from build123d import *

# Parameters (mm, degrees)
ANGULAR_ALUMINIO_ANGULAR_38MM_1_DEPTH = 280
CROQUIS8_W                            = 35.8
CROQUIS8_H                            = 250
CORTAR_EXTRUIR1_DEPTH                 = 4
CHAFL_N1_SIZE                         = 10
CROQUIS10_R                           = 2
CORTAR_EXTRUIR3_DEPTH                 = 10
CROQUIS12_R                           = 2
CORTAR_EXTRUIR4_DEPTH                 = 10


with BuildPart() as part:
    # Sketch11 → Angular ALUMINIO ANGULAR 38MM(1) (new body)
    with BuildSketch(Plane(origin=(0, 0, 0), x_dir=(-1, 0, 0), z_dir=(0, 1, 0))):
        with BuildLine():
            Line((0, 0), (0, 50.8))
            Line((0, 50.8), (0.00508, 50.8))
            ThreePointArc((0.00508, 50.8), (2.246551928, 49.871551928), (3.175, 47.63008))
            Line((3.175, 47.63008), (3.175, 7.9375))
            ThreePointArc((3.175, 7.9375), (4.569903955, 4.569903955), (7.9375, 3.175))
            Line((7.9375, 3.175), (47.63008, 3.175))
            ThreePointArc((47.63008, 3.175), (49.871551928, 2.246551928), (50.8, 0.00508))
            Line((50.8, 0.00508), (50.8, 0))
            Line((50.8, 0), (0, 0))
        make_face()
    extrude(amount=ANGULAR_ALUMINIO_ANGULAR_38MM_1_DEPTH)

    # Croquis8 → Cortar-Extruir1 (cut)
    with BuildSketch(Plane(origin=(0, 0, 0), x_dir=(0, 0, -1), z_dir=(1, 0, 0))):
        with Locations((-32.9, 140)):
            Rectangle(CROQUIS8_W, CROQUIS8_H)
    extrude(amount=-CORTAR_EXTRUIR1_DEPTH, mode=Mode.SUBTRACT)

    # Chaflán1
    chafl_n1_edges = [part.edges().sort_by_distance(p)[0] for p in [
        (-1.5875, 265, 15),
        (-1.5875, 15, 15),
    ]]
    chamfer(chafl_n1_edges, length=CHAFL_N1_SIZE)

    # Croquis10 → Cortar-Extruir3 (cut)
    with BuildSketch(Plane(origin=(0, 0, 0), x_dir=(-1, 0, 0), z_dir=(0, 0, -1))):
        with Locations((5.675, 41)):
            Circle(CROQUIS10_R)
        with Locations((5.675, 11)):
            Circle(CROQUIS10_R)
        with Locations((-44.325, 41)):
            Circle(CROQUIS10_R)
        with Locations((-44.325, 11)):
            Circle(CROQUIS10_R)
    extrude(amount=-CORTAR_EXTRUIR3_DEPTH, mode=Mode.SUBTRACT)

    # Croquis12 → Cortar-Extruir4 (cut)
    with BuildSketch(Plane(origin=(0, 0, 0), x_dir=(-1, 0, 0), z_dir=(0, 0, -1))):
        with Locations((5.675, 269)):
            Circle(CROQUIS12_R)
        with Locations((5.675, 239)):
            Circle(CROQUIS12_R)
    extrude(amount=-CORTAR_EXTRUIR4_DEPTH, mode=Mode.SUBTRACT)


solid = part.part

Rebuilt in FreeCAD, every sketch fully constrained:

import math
import FreeCAD as App
import Part
import Sketcher
from FreeCAD import Vector
Q = App.Units.Quantity


def edges_at(feature, points):
    """Names of the edges that pass closest to the given points."""
    edges = feature.Shape.Edges
    near = lambda p: min(range(len(edges)), key=lambda i: edges[i].distToShape(Part.Vertex(*p))[0])
    return sorted({f"Edge{near(p) + 1}" for p in points})

doc = App.newDocument("Part")
params = doc.addObject("Spreadsheet::Sheet", "Params")
for row, (alias, value) in enumerate([
    ("sketch1_width", "50.8 mm"),
    ("pad1_length", "280 mm"),
    ("sketch2_width", "250 mm"),
    ("sketch2_height", "35.8 mm"),
    ("pocket1_length", "4 mm"),
    ("chamfer_size", "10 mm"),
    ("sketch3_diameter", "4 mm"),
    ("pocket2_length", "10 mm"),
    ("sketch4_diameter", "4 mm"),
    ("pocket3_length", "10 mm"),
], start=1):
    params.set(f"A{row}", alias)
    params.set(f"B{row}", "=" + value)
    params.setAlias(f"B{row}", alias)

body = doc.addObject("PartDesign::Body", "Body")

sketch1 = body.newObject("Sketcher::SketchObject", "Sketch")
sketch1.AttachmentSupport = (doc.getObject("XZ_Plane"), [""])
sketch1.MapMode = "FlatFace"
sketch1.addGeometry(Part.LineSegment(Vector(0, 50.8, 0), Vector(0, 0, 0)), False)
sketch1.addGeometry(Part.LineSegment(Vector(0, 0, 0), Vector(-50.8, 0, 0)), False)
sketch1.addGeometry(Part.LineSegment(Vector(-50.8, 0, 0), Vector(-50.8, 0.005, 0)), False)
sketch1.addGeometry(Part.ArcOfCircle(Part.Circle(Vector(-47.63, 0.005, 0), Vector(0, 0, 1), 3.17), math.radians(90), math.radians(180)), False)
sketch1.addGeometry(Part.LineSegment(Vector(-47.63, 3.175, 0), Vector(-7.938, 3.175, 0)), False)
sketch1.addGeometry(Part.ArcOfCircle(Part.Circle(Vector(-7.938, 7.938, 0), Vector(0, 0, 1), 4.763), math.radians(-90), math.radians(0)), False)
sketch1.addGeometry(Part.LineSegment(Vector(-3.175, 7.938, 0), Vector(-3.175, 47.63, 0)), False)
sketch1.addGeometry(Part.ArcOfCircle(Part.Circle(Vector(-0.005, 47.63, 0), Vector(0, 0, 1), 3.17), math.radians(90), math.radians(180)), False)
sketch1.addGeometry(Part.LineSegment(Vector(-0.005, 50.8, 0), Vector(0, 50.8, 0)), False)
sketch1.addConstraint(Sketcher.Constraint("Coincident", 0, 2, 1, 1))
sketch1.addConstraint(Sketcher.Constraint("Coincident", 1, 2, 2, 1))
sketch1.addConstraint(Sketcher.Constraint("Tangent", 2, 2, 3, 2))
sketch1.addConstraint(Sketcher.Constraint("Tangent", 3, 1, 4, 1))
sketch1.addConstraint(Sketcher.Constraint("Tangent", 4, 2, 5, 1))
sketch1.addConstraint(Sketcher.Constraint("Tangent", 5, 2, 6, 1))
sketch1.addConstraint(Sketcher.Constraint("Tangent", 6, 2, 7, 2))
sketch1.addConstraint(Sketcher.Constraint("Tangent", 7, 1, 8, 1))
sketch1.addConstraint(Sketcher.Constraint("Coincident", 8, 2, 0, 1))
sketch1.addConstraint(Sketcher.Constraint("Vertical", 0))
sketch1.addConstraint(Sketcher.Constraint("Horizontal", 1))
sketch1.addConstraint(Sketcher.Constraint("Horizontal", 4))
sketch1.addConstraint(Sketcher.Constraint("Vertical", 6))
sketch1.addConstraint(Sketcher.Constraint("Coincident", 0, 2, -1, 1))
sketch1.addConstraint(Sketcher.Constraint("Equal", 3, 7))
sketch1.addConstraint(Sketcher.Constraint("Horizontal", 3, 3, 2, 2))
sketch1.addConstraint(Sketcher.Constraint("Equal", 1, 0))
sketch1.addConstraint(Sketcher.Constraint("Equal", 8, 2))
sketch1.addConstraint(Sketcher.Constraint("Equal", 4, 6))
sketch1.addConstraint(Sketcher.Constraint("DistanceX", 1, 2, 1, 1, Q("50.8 mm")))
sketch1.addConstraint(Sketcher.Constraint("Radius", 5, Q("4.7625 mm")))
sketch1.addConstraint(Sketcher.Constraint("Radius", 3, Q("3.16992 mm")))
sketch1.addConstraint(Sketcher.Constraint("DistanceY", -1, 1, 3, 1, Q("3.175 mm")))
sketch1.setExpression("Constraints[19]", "Params.sketch1_width")
pad1 = body.newObject("PartDesign::Pad", "Pad")
pad1.Profile = sketch1
pad1.setExpression("Length", "Params.pad1_length")
pad1.Reversed = True

sketch2 = body.newObject("Sketcher::SketchObject", "Sketch001")
sketch2.AttachmentSupport = (doc.getObject("YZ_Plane"), [""])
sketch2.MapMode = "FlatFace"
sketch2.addGeometry(Part.LineSegment(Vector(265, 51, 0), Vector(15, 51, 0)), False)
sketch2.addGeometry(Part.LineSegment(Vector(15, 51, 0), Vector(15, 15, 0)), False)
sketch2.addGeometry(Part.LineSegment(Vector(15, 15, 0), Vector(265, 15, 0)), False)
sketch2.addGeometry(Part.LineSegment(Vector(265, 15, 0), Vector(265, 51, 0)), False)
sketch2.addConstraint(Sketcher.Constraint("Coincident", 0, 2, 1, 1))
sketch2.addConstraint(Sketcher.Constraint("Coincident", 1, 2, 2, 1))
sketch2.addConstraint(Sketcher.Constraint("Coincident", 2, 2, 3, 1))
sketch2.addConstraint(Sketcher.Constraint("Coincident", 3, 2, 0, 1))
sketch2.addConstraint(Sketcher.Constraint("Horizontal", 0))
sketch2.addConstraint(Sketcher.Constraint("Vertical", 1))
sketch2.addConstraint(Sketcher.Constraint("Horizontal", 2))
sketch2.addConstraint(Sketcher.Constraint("Vertical", 3))
sketch2.addConstraint(Sketcher.Constraint("DistanceX", 0, 2, 0, 1, Q("250 mm")))
sketch2.addConstraint(Sketcher.Constraint("DistanceY", 1, 2, 1, 1, Q("35.8 mm")))
sketch2.addConstraint(Sketcher.Constraint("DistanceX", -1, 1, 0, 2, Q("15 mm")))
sketch2.addConstraint(Sketcher.Constraint("DistanceY", -1, 1, 1, 2, Q("15 mm")))
sketch2.setExpression("Constraints[8]", "Params.sketch2_width")
sketch2.setExpression("Constraints[9]", "Params.sketch2_height")
pocket1 = body.newObject("PartDesign::Pocket", "Pocket")
pocket1.Profile = sketch2
pocket1.setExpression("Length", "Params.pocket1_length")
doc.recompute()

chamfer = body.newObject("PartDesign::Chamfer", "Chamfer")
chamfer.Base = (pocket1, edges_at(pocket1, [(-1.587, 265, 15), (-1.587, 15, 15)]))
chamfer.setExpression("Size", "Params.chamfer_size")

sketch3 = body.newObject("Sketcher::SketchObject", "Sketch002")
sketch3.AttachmentSupport = (doc.getObject("XY_Plane"), [""])
sketch3.MapMode = "FlatFace"
sketch3.addGeometry(Part.Circle(Vector(-5.7, 41, 0), Vector(0, 0, 1), 2), False)
sketch3.addGeometry(Part.Circle(Vector(-5.7, 11, 0), Vector(0, 0, 1), 2), False)
sketch3.addGeometry(Part.Circle(Vector(44.3, 41, 0), Vector(0, 0, 1), 2), False)
sketch3.addGeometry(Part.Circle(Vector(44.3, 11, 0), Vector(0, 0, 1), 2), False)
sketch3.addConstraint(Sketcher.Constraint("Equal", 0, 1))
sketch3.addConstraint(Sketcher.Constraint("Equal", 1, 2))
sketch3.addConstraint(Sketcher.Constraint("Equal", 2, 3))
sketch3.addConstraint(Sketcher.Constraint("Horizontal", 0, 3, 2, 3))
sketch3.addConstraint(Sketcher.Constraint("Horizontal", 1, 3, 3, 3))
sketch3.addConstraint(Sketcher.Constraint("Vertical", 0, 3, 1, 3))
sketch3.addConstraint(Sketcher.Constraint("Vertical", 2, 3, 3, 3))
sketch3.addConstraint(Sketcher.Constraint("Diameter", 0, Q("4 mm")))
sketch3.addConstraint(Sketcher.Constraint("DistanceY", -1, 1, 0, 3, Q("41 mm")))
sketch3.addConstraint(Sketcher.Constraint("DistanceY", -1, 1, 1, 3, Q("11 mm")))
sketch3.addConstraint(Sketcher.Constraint("DistanceX", 0, 3, 2, 3, Q("50 mm")))
sketch3.addConstraint(Sketcher.Constraint("DistanceX", 0, 3, -1, 1, Q("5.675 mm")))
sketch3.setExpression("Constraints[7]", "Params.sketch3_diameter")
pocket2 = body.newObject("PartDesign::Pocket", "Pocket001")
pocket2.Profile = sketch3
pocket2.setExpression("Length", "Params.pocket2_length")
pocket2.Reversed = True

sketch4 = body.newObject("Sketcher::SketchObject", "Sketch003")
sketch4.AttachmentSupport = (doc.getObject("XY_Plane"), [""])
sketch4.MapMode = "FlatFace"
sketch4.addGeometry(Part.Circle(Vector(-5.7, 269, 0), Vector(0, 0, 1), 2), False)
sketch4.addGeometry(Part.Circle(Vector(-5.7, 239, 0), Vector(0, 0, 1), 2), False)
sketch4.addConstraint(Sketcher.Constraint("Equal", 0, 1))
sketch4.addConstraint(Sketcher.Constraint("Vertical", 0, 3, 1, 3))
sketch4.addConstraint(Sketcher.Constraint("Diameter", 0, Q("4 mm")))
sketch4.addConstraint(Sketcher.Constraint("DistanceY", -1, 1, 0, 3, Q("269 mm")))
sketch4.addConstraint(Sketcher.Constraint("DistanceY", -1, 1, 1, 3, Q("239 mm")))
sketch4.addConstraint(Sketcher.Constraint("DistanceX", 0, 3, -1, 1, Q("5.675 mm")))
sketch4.setExpression("Constraints[2]", "Params.sketch4_diameter")
pocket3 = body.newObject("PartDesign::Pocket", "Pocket002")
pocket3.Profile = sketch4
pocket3.setExpression("Length", "Params.pocket3_length")
pocket3.Reversed = True

doc.recompute()
